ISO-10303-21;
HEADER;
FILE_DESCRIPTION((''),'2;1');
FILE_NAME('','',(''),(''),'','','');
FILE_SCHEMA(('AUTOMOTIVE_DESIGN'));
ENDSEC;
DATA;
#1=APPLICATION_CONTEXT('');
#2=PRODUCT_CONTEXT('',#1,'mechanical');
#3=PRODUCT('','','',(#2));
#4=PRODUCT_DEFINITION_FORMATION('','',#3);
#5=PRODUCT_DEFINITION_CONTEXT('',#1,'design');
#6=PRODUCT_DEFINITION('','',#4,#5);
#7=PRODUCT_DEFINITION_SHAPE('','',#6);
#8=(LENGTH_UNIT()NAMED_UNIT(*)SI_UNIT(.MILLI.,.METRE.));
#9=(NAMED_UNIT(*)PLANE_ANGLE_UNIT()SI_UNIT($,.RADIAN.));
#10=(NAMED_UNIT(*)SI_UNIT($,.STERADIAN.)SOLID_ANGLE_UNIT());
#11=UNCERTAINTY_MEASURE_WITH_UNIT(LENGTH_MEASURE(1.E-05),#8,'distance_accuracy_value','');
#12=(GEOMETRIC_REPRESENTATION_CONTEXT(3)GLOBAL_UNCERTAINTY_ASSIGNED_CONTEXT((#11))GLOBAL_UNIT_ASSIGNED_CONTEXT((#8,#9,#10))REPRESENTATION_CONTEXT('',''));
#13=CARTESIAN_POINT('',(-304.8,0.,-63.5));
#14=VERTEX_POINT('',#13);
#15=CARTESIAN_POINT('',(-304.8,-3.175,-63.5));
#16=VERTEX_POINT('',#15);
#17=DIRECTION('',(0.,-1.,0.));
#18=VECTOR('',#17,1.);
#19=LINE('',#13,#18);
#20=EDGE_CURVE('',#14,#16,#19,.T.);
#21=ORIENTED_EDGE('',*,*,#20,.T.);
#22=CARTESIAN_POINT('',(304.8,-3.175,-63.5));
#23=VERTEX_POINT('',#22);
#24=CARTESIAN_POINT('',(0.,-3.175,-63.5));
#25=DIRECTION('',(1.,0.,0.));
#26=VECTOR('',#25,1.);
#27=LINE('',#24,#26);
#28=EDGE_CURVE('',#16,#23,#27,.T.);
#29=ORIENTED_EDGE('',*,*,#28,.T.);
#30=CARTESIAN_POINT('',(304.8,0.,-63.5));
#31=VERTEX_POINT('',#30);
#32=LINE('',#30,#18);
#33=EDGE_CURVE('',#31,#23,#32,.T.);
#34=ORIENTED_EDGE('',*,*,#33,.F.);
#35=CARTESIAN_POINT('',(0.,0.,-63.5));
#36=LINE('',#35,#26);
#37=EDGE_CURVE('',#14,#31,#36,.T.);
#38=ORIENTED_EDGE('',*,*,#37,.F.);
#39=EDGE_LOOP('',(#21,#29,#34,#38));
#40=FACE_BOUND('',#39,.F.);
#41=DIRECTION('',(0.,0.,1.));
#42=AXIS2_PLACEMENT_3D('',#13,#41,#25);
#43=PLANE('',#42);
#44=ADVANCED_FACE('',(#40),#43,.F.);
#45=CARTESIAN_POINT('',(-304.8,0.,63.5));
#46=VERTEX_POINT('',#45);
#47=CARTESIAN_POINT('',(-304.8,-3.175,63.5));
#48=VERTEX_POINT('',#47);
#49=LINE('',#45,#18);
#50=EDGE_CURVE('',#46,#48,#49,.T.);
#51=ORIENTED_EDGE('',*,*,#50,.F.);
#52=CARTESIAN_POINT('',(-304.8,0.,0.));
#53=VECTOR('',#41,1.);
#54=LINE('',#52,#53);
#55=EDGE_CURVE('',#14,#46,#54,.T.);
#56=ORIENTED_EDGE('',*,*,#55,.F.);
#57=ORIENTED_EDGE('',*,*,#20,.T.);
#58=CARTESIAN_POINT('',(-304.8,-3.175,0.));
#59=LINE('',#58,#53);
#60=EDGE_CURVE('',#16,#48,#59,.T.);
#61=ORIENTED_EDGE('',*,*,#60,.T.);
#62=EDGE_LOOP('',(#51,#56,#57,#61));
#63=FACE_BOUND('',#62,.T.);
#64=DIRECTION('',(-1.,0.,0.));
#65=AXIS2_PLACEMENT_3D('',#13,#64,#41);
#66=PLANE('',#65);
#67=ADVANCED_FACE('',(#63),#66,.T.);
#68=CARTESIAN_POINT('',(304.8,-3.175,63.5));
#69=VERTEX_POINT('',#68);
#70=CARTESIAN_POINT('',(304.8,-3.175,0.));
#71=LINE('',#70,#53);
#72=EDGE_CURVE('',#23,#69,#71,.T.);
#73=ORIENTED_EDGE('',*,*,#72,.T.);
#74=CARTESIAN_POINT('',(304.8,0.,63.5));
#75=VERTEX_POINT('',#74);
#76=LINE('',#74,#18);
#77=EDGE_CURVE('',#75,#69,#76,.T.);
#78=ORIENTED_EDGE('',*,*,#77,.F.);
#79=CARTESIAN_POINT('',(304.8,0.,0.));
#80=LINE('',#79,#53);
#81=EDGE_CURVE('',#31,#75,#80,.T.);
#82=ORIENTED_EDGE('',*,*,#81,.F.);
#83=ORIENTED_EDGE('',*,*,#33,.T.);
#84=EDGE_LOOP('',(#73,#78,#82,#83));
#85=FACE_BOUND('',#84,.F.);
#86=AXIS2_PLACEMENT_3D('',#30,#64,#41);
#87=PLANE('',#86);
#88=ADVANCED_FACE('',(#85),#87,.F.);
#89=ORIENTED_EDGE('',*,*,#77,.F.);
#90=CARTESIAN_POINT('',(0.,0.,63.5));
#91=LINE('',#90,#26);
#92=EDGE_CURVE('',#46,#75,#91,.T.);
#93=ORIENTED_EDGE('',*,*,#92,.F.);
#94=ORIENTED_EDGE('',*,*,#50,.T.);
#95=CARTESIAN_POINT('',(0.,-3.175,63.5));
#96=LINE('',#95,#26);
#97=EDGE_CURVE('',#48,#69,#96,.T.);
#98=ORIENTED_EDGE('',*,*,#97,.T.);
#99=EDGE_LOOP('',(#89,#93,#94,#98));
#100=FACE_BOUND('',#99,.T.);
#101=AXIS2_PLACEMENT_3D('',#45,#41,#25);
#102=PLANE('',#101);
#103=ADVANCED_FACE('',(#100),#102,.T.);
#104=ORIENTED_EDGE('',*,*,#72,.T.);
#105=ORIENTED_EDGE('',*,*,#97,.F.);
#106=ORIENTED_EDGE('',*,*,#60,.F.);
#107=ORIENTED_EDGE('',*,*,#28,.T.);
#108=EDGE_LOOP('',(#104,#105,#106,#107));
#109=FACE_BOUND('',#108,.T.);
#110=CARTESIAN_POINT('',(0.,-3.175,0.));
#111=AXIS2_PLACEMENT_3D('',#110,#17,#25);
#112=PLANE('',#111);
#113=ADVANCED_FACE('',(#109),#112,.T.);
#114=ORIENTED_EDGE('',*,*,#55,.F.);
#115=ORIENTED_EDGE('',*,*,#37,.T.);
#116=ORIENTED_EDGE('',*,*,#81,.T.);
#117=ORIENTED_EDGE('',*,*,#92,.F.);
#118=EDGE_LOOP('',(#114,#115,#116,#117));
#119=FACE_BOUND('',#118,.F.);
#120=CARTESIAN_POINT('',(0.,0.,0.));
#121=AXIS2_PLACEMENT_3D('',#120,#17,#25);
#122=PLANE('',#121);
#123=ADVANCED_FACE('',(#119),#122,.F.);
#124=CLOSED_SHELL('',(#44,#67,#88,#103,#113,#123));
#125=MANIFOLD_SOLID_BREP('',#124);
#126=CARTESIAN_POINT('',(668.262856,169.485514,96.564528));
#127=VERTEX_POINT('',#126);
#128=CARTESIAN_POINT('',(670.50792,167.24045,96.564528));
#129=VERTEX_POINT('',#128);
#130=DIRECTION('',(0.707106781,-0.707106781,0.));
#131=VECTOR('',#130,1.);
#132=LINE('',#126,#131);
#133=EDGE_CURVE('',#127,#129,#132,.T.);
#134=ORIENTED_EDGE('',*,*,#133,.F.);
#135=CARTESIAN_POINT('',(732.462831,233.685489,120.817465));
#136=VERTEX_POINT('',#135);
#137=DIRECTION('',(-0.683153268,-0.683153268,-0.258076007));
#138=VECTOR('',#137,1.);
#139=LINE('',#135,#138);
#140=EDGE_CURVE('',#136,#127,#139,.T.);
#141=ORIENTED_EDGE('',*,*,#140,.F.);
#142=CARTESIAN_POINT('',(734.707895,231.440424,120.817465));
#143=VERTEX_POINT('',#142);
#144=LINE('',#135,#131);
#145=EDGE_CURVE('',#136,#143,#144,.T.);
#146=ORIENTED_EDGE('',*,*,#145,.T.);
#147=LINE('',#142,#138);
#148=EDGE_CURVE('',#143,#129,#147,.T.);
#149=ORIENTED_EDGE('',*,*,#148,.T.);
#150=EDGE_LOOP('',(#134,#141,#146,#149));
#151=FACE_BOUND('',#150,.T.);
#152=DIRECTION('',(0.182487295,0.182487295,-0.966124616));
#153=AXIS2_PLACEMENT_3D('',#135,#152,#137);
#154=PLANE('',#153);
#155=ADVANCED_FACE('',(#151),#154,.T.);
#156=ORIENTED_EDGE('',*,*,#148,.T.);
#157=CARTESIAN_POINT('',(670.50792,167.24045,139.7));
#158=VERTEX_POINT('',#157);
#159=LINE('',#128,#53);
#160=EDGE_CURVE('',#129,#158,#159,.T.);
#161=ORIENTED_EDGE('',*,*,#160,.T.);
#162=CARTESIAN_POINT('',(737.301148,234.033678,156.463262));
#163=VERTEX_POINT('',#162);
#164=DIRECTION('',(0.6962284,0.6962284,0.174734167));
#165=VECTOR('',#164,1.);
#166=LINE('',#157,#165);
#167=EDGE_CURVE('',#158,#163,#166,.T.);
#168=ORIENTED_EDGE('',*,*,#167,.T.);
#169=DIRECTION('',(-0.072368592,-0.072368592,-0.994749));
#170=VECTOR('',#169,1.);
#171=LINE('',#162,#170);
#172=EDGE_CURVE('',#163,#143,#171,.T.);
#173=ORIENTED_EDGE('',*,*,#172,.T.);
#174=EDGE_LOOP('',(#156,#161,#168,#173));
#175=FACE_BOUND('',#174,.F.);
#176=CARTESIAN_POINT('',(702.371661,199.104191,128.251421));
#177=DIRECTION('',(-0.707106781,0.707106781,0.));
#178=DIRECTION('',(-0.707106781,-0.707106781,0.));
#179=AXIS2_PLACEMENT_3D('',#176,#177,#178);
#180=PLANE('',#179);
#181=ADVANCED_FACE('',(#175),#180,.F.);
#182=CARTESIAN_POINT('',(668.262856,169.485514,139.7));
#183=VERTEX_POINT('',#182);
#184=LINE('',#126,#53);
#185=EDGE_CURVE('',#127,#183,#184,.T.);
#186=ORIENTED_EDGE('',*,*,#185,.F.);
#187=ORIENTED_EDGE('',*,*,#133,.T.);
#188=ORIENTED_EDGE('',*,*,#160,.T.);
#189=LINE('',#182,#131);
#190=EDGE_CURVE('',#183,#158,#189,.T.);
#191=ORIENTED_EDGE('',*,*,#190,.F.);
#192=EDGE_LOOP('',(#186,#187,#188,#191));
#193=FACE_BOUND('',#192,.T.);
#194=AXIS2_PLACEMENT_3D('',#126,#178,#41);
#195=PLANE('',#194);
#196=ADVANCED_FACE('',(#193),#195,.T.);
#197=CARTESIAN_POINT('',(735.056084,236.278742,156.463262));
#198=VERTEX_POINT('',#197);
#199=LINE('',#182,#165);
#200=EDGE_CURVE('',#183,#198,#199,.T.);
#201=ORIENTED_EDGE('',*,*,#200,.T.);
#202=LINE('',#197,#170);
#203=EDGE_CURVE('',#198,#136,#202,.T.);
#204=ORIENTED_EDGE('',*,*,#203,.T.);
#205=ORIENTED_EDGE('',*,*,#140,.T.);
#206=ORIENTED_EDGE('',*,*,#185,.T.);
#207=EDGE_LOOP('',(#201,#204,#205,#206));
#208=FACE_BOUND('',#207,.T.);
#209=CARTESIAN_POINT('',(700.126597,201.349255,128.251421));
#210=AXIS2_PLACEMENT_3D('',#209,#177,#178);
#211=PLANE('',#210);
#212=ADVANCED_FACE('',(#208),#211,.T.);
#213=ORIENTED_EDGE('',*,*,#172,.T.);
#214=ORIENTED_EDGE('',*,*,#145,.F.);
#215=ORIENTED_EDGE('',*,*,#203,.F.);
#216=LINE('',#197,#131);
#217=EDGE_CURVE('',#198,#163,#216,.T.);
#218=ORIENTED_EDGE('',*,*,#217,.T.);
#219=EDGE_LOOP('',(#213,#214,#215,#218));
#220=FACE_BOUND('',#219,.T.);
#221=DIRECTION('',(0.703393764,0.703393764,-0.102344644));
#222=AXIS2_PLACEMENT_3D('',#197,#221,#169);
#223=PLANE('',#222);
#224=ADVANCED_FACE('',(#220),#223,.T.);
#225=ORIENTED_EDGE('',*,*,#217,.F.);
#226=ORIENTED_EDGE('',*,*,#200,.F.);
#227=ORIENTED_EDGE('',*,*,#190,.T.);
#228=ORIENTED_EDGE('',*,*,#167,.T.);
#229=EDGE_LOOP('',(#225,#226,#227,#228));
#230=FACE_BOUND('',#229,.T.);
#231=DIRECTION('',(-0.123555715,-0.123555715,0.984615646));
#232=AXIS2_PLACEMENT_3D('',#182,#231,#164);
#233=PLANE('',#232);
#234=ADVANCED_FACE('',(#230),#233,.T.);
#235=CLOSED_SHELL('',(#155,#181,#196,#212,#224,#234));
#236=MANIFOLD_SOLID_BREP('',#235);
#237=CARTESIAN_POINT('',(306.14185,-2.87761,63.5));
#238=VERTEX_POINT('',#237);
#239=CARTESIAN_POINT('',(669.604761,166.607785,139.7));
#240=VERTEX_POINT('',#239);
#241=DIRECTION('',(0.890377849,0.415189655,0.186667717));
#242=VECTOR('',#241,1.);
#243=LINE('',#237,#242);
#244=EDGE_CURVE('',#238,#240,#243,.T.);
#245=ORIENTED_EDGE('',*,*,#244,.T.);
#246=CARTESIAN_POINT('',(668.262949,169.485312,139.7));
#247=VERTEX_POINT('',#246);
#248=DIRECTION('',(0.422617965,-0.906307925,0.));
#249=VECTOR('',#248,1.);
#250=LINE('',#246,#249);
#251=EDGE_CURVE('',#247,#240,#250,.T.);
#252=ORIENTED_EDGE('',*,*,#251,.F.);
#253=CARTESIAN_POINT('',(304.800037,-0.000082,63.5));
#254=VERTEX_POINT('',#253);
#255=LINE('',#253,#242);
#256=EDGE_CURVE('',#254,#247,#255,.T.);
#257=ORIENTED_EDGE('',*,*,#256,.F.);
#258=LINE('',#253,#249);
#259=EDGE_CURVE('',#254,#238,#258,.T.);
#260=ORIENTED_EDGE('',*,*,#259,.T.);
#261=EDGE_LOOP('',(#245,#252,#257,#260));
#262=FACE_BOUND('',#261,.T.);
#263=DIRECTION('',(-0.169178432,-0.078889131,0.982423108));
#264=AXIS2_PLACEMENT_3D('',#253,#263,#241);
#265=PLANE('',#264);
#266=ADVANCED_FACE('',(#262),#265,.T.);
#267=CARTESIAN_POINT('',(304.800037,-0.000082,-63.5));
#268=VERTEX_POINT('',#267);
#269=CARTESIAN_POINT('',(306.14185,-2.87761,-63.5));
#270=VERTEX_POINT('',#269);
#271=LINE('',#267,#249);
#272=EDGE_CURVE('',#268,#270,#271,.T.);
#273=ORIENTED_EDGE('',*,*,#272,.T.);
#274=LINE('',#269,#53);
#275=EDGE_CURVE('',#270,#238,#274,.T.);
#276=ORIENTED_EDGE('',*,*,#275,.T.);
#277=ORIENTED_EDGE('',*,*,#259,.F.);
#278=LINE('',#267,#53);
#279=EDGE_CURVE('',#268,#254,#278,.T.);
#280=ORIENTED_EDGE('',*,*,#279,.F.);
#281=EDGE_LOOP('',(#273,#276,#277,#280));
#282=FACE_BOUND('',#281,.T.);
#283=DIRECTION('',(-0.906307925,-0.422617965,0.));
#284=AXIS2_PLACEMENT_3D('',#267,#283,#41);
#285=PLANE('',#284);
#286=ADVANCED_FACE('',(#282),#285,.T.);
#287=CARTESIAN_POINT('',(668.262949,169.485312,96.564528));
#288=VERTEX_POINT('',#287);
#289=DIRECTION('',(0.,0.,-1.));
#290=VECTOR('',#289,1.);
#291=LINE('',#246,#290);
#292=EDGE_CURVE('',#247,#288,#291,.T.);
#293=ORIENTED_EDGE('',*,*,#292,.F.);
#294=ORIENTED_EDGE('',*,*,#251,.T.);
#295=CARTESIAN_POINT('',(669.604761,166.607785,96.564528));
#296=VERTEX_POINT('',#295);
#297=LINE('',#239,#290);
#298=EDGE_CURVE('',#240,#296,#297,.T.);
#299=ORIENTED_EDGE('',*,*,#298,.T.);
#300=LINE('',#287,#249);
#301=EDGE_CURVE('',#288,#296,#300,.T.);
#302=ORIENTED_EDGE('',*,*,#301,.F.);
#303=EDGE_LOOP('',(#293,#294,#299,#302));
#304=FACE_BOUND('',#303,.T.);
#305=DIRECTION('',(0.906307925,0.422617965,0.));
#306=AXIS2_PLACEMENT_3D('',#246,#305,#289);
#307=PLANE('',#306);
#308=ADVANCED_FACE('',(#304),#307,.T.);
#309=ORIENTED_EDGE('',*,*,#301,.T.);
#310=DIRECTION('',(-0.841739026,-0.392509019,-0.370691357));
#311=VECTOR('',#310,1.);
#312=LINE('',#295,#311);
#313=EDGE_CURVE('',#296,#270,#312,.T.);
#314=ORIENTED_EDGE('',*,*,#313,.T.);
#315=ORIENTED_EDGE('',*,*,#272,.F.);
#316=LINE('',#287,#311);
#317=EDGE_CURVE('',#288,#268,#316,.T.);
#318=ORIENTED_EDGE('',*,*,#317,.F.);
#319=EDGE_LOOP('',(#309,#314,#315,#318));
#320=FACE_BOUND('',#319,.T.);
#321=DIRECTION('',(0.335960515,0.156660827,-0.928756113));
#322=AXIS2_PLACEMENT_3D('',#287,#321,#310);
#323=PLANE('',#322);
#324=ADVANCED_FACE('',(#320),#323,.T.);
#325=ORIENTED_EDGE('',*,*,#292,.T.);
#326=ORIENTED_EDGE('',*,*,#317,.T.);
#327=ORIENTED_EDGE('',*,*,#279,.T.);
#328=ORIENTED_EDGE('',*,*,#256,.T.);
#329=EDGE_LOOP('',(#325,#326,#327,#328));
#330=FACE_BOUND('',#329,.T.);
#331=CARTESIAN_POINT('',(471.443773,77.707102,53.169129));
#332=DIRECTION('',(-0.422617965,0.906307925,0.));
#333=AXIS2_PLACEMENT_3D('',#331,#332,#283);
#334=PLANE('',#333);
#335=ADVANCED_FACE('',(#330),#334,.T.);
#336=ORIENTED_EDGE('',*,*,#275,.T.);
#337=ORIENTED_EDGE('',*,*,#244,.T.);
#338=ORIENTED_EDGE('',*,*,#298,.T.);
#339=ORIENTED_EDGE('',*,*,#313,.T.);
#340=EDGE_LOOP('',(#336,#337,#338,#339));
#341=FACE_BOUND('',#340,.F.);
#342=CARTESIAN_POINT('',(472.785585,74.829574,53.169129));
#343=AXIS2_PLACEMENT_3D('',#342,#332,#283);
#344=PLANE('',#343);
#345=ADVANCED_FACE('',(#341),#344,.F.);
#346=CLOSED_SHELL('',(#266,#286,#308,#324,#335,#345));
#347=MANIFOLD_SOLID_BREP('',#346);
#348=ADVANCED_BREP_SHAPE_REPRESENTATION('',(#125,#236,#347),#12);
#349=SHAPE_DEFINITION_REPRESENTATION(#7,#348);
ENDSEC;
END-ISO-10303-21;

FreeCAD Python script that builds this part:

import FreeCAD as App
import Part
import Sketcher
from FreeCAD import Vector
Q = App.Units.Quantity

doc = App.newDocument("Part")
body = doc.addObject("PartDesign::Body", "Body")

sketch1 = doc.addObject("Sketcher::SketchObject", "Sketch")
body.addObject(sketch1)
sketch1.AttachmentSupport = (doc.XZ_Plane, [""])
sketch1.MapMode = "FlatFace"
sketch1.addGeometry([
    Part.LineSegment(Vector(-304.8, 63.5, 0), Vector(-304.8, -63.5, 0)),
    Part.LineSegment(Vector(-304.8, -63.5, 0), Vector(304.8, -63.5, 0)),
    Part.LineSegment(Vector(304.8, -63.5, 0), Vector(304.8, 63.5, 0)),
    Part.LineSegment(Vector(304.8, 63.5, 0), Vector(-304.8, 63.5, 0)),
], False)
sketch1.addConstraint([
    Sketcher.Constraint("Coincident", 0, 2, 1, 1),
    Sketcher.Constraint("Coincident", 1, 2, 2, 1),
    Sketcher.Constraint("Coincident", 2, 2, 3, 1),
    Sketcher.Constraint("Coincident", 3, 2, 0, 1),
    Sketcher.Constraint("Vertical", 0),
    Sketcher.Constraint("Horizontal", 1),
    Sketcher.Constraint("Vertical", 2),
    Sketcher.Constraint("Horizontal", 3),
    Sketcher.Constraint("Symmetric", 0, 2, 2, 2, -1, 1),
    Sketcher.Constraint("DistanceX", 1, 1, 1, 2, Q("24 in")),
    Sketcher.Constraint("DistanceY", 0, 2, 0, 1, Q("5 in")),
])
pad1 = doc.addObject("PartDesign::Pad", "Pad")
body.addObject(pad1)
pad1.Profile = sketch1
pad1.Length = Q("0.125 in")
body2 = doc.addObject("PartDesign::Body", "Body001")

sketch2 = doc.addObject("Sketcher::SketchObject", "Sketch001")
body2.addObject(sketch2)
sketch2.Placement = App.Placement(Vector(54.439168, -116.745173, 0), App.Rotation(Vector(-0.906307925, -0.422617965, 0), Vector(0, 0, 0.999999999), Vector(-0.422617965, 0.906307925, 0), "ZXY"))
sketch2.addGeometry([
    Part.LineSegment(Vector(-677.279502, 96.564528, 0), Vector(-276.242613, -63.5, 0)),
    Part.LineSegment(Vector(-276.242613, -63.5, 0), Vector(-276.242613, 63.5, 0)),
    Part.LineSegment(Vector(-276.242613, 63.5, 0), Vector(-677.279502, 139.7, 0)),
    Part.LineSegment(Vector(-677.279502, 139.7, 0), Vector(-677.279502, 96.564528, 0)),
], False)
sketch2.addConstraint([
    Sketcher.Constraint("Coincident", 0, 2, 1, 1),
    Sketcher.Constraint("Coincident", 1, 2, 2, 1),
    Sketcher.Constraint("Coincident", 2, 2, 3, 1),
    Sketcher.Constraint("Coincident", 3, 2, 0, 1),
    Sketcher.Constraint("Vertical", 1),
    Sketcher.Constraint("Vertical", 3),
    Sketcher.Constraint("DistanceY", 1, 1, 1, 2, Q("5 in")),
    Sketcher.Constraint("Distance", 0, Q("17 in")),
    Sketcher.Constraint("DistanceY", 1, 2, 2, 2, Q("3 in")),
    Sketcher.Constraint("DistanceY", 0, 2, -1, 1, Q("2.5 in")),
    Sketcher.Constraint("DistanceY", 3, 2, 3, 1, Q("43.135472 mm")),
    Sketcher.Constraint("DistanceX", 0, 2, -1, 1, Q("276.242613 mm")),
])
pad2 = doc.addObject("PartDesign::Pad", "Pad001")
body2.addObject(pad2)
pad2.Profile = sketch2
pad2.Length = Q("0.125 in")
pad2.Reversed = True
body3 = doc.addObject("PartDesign::Body", "Body002")

sketch3 = doc.addObject("Sketcher::SketchObject", "Sketch002")
body3.addObject(sketch3)
sketch3.Placement = App.Placement(Vector(249.388671, -249.388671, 0), App.Rotation(Vector(-0.707106781, -0.707106781, 0), Vector(0, 0, 0.999999999), Vector(-0.707106781, 0.707106781, 0), "ZXY"))
sketch3.addGeometry([
    Part.LineSegment(Vector(-683.170028, 120.817465, 0), Vector(-592.377553, 96.564528, 0)),
    Part.LineSegment(Vector(-592.377553, 96.564528, 0), Vector(-592.377553, 139.7, 0)),
    Part.LineSegment(Vector(-592.377553, 139.7, 0), Vector(-686.837442, 156.463262, 0)),
    Part.LineSegment(Vector(-686.837442, 156.463262, 0), Vector(-683.170028, 120.817465, 0)),
], False)
sketch3.addConstraint([
    Sketcher.Constraint("Coincident", 0, 2, 1, 1),
    Sketcher.Constraint("Coincident", 1, 2, 2, 1),
    Sketcher.Constraint("Coincident", 2, 2, 3, 1),
    Sketcher.Constraint("Coincident", 3, 2, 0, 1),
    Sketcher.Constraint("Vertical", 1),
    Sketcher.Constraint("DistanceY", -1, 1, 1, 2, Q("5.5 in")),
    Sketcher.Constraint("Distance", 2, Q("3.777 in")),
    Sketcher.Constraint("DistanceY", 1, 1, 1, 2, Q("43.135472 mm")),
    Sketcher.Constraint("Distance", 3, Q("35.833961 mm")),
    Sketcher.Constraint("DistanceX", 2, 2, -1, 1, Q("686.837442 mm")),
    Sketcher.Constraint("DistanceY", -1, 1, 2, 2, Q("156.463262 mm")),
    Sketcher.Constraint("Distance", 0, Q("93.975946 mm")),
])
pad3 = doc.addObject("PartDesign::Pad", "Pad002")
body3.addObject(pad3)
pad3.Profile = sketch3
pad3.Length = Q("0.125 in")
pad3.Reversed = True

doc.recompute()
